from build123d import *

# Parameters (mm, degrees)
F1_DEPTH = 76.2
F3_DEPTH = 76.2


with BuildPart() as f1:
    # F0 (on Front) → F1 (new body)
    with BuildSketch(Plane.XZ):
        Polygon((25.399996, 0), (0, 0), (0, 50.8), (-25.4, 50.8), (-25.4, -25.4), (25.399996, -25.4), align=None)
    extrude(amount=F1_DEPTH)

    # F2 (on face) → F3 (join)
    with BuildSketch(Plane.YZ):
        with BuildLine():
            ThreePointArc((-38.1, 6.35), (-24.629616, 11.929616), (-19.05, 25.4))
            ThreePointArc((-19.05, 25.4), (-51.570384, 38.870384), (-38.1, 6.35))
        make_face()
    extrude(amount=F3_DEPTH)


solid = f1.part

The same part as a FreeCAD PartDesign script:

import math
import FreeCAD as App
import Part
import Sketcher

V = App.Vector
Q = App.Units.Quantity

doc = App.newDocument("Part")
body = doc.addObject("PartDesign::Body", "Body")

# Sketch on XZ plane
sketch1 = body.newObject("Sketcher::SketchObject", "Sketch")
sketch1.AttachmentSupport = (doc.getObject("XZ_Plane"), [""])
sketch1.MapMode = "FlatFace"
sketch1.addGeometry(Part.LineSegment(V(25.399996, 0, 0), V(0, 0, 0)), False)
sketch1.addGeometry(Part.LineSegment(V(0, 0, 0), V(0, 50.8, 0)), False)
sketch1.addGeometry(Part.LineSegment(V(0, 50.8, 0), V(-25.4, 50.8, 0)), False)
sketch1.addGeometry(Part.LineSegment(V(-25.4, 50.8, 0), V(-25.4, -25.4, 0)), False)
sketch1.addGeometry(Part.LineSegment(V(-25.4, -25.4, 0), V(25.399996, -25.4, 0)), False)
sketch1.addGeometry(Part.LineSegment(V(25.399996, -25.4, 0), V(25.399996, 0, 0)), False)
sketch1.addConstraint(Sketcher.Constraint("Coincident", 0, 2, 1, 1))
sketch1.addConstraint(Sketcher.Constraint("Coincident", 1, 2, 2, 1))
sketch1.addConstraint(Sketcher.Constraint("Coincident", 2, 2, 3, 1))
sketch1.addConstraint(Sketcher.Constraint("Coincident", 3, 2, 4, 1))
sketch1.addConstraint(Sketcher.Constraint("Coincident", 4, 2, 5, 1))
sketch1.addConstraint(Sketcher.Constraint("Coincident", 5, 2, 0, 1))
sketch1.addConstraint(Sketcher.Constraint("Horizontal", 0))
sketch1.addConstraint(Sketcher.Constraint("Vertical", 1))
sketch1.addConstraint(Sketcher.Constraint("Horizontal", 2))
sketch1.addConstraint(Sketcher.Constraint("Vertical", 3))
sketch1.addConstraint(Sketcher.Constraint("Horizontal", 4))
sketch1.addConstraint(Sketcher.Constraint("Vertical", 5))
sketch1.addConstraint(Sketcher.Constraint("Coincident", 0, 2, -1, 1))
sketch1.addConstraint(Sketcher.Constraint("Equal", 2, 5))
sketch1.addConstraint(Sketcher.Constraint("DistanceX", 0, 2, 0, 1, Q("0.9999998 in")))
sketch1.addConstraint(Sketcher.Constraint("DistanceX", 2, 2, 2, 1, Q("1 in")))
sketch1.addConstraint(Sketcher.Constraint("DistanceY", 1, 1, 1, 2, Q("2 in")))
pad1 = body.newObject("PartDesign::Pad", "Pad")
pad1.Profile = sketch1
pad1.Length = Q("3 in")

# Sketch on YZ plane
sketch2 = body.newObject("Sketcher::SketchObject", "Sketch001")
sketch2.AttachmentSupport = (doc.getObject("YZ_Plane"), [""])
sketch2.MapMode = "FlatFace"
sketch2.addGeometry(Part.ArcOfCircle(Part.Circle(V(-38.100001, 25.400001, 0), V(0, 0, 1), 19.050001), math.radians(-89.999998), math.radians(-0.000002)), False)
sketch2.addGeometry(Part.ArcOfCircle(Part.Circle(V(-38.1, 25.4, 0), V(0, 0, 1), 19.05), math.radians(0), math.radians(270)), False)
sketch2.addConstraint(Sketcher.Constraint("Tangent", 0, 1, 1, 2))
sketch2.addConstraint(Sketcher.Constraint("Coincident", 1, 1, 0, 2))
sketch2.addConstraint(Sketcher.Constraint("Horizontal", 0, 3, 1, 1))
sketch2.addConstraint(Sketcher.Constraint("Vertical", 1, 3, 0, 1))
sketch2.addConstraint(Sketcher.Constraint("Radius", 0, Q("0.75 in")))
sketch2.addConstraint(Sketcher.Constraint("DistanceY", -1, 1, 0, 3, Q("1 in")))
sketch2.addConstraint(Sketcher.Constraint("DistanceX", 0, 3, -1, 1, Q("1.5 in")))
pad2 = body.newObject("PartDesign::Pad", "Pad001")
pad2.Profile = sketch2
pad2.Length = Q("3 in")

doc.recompute()
